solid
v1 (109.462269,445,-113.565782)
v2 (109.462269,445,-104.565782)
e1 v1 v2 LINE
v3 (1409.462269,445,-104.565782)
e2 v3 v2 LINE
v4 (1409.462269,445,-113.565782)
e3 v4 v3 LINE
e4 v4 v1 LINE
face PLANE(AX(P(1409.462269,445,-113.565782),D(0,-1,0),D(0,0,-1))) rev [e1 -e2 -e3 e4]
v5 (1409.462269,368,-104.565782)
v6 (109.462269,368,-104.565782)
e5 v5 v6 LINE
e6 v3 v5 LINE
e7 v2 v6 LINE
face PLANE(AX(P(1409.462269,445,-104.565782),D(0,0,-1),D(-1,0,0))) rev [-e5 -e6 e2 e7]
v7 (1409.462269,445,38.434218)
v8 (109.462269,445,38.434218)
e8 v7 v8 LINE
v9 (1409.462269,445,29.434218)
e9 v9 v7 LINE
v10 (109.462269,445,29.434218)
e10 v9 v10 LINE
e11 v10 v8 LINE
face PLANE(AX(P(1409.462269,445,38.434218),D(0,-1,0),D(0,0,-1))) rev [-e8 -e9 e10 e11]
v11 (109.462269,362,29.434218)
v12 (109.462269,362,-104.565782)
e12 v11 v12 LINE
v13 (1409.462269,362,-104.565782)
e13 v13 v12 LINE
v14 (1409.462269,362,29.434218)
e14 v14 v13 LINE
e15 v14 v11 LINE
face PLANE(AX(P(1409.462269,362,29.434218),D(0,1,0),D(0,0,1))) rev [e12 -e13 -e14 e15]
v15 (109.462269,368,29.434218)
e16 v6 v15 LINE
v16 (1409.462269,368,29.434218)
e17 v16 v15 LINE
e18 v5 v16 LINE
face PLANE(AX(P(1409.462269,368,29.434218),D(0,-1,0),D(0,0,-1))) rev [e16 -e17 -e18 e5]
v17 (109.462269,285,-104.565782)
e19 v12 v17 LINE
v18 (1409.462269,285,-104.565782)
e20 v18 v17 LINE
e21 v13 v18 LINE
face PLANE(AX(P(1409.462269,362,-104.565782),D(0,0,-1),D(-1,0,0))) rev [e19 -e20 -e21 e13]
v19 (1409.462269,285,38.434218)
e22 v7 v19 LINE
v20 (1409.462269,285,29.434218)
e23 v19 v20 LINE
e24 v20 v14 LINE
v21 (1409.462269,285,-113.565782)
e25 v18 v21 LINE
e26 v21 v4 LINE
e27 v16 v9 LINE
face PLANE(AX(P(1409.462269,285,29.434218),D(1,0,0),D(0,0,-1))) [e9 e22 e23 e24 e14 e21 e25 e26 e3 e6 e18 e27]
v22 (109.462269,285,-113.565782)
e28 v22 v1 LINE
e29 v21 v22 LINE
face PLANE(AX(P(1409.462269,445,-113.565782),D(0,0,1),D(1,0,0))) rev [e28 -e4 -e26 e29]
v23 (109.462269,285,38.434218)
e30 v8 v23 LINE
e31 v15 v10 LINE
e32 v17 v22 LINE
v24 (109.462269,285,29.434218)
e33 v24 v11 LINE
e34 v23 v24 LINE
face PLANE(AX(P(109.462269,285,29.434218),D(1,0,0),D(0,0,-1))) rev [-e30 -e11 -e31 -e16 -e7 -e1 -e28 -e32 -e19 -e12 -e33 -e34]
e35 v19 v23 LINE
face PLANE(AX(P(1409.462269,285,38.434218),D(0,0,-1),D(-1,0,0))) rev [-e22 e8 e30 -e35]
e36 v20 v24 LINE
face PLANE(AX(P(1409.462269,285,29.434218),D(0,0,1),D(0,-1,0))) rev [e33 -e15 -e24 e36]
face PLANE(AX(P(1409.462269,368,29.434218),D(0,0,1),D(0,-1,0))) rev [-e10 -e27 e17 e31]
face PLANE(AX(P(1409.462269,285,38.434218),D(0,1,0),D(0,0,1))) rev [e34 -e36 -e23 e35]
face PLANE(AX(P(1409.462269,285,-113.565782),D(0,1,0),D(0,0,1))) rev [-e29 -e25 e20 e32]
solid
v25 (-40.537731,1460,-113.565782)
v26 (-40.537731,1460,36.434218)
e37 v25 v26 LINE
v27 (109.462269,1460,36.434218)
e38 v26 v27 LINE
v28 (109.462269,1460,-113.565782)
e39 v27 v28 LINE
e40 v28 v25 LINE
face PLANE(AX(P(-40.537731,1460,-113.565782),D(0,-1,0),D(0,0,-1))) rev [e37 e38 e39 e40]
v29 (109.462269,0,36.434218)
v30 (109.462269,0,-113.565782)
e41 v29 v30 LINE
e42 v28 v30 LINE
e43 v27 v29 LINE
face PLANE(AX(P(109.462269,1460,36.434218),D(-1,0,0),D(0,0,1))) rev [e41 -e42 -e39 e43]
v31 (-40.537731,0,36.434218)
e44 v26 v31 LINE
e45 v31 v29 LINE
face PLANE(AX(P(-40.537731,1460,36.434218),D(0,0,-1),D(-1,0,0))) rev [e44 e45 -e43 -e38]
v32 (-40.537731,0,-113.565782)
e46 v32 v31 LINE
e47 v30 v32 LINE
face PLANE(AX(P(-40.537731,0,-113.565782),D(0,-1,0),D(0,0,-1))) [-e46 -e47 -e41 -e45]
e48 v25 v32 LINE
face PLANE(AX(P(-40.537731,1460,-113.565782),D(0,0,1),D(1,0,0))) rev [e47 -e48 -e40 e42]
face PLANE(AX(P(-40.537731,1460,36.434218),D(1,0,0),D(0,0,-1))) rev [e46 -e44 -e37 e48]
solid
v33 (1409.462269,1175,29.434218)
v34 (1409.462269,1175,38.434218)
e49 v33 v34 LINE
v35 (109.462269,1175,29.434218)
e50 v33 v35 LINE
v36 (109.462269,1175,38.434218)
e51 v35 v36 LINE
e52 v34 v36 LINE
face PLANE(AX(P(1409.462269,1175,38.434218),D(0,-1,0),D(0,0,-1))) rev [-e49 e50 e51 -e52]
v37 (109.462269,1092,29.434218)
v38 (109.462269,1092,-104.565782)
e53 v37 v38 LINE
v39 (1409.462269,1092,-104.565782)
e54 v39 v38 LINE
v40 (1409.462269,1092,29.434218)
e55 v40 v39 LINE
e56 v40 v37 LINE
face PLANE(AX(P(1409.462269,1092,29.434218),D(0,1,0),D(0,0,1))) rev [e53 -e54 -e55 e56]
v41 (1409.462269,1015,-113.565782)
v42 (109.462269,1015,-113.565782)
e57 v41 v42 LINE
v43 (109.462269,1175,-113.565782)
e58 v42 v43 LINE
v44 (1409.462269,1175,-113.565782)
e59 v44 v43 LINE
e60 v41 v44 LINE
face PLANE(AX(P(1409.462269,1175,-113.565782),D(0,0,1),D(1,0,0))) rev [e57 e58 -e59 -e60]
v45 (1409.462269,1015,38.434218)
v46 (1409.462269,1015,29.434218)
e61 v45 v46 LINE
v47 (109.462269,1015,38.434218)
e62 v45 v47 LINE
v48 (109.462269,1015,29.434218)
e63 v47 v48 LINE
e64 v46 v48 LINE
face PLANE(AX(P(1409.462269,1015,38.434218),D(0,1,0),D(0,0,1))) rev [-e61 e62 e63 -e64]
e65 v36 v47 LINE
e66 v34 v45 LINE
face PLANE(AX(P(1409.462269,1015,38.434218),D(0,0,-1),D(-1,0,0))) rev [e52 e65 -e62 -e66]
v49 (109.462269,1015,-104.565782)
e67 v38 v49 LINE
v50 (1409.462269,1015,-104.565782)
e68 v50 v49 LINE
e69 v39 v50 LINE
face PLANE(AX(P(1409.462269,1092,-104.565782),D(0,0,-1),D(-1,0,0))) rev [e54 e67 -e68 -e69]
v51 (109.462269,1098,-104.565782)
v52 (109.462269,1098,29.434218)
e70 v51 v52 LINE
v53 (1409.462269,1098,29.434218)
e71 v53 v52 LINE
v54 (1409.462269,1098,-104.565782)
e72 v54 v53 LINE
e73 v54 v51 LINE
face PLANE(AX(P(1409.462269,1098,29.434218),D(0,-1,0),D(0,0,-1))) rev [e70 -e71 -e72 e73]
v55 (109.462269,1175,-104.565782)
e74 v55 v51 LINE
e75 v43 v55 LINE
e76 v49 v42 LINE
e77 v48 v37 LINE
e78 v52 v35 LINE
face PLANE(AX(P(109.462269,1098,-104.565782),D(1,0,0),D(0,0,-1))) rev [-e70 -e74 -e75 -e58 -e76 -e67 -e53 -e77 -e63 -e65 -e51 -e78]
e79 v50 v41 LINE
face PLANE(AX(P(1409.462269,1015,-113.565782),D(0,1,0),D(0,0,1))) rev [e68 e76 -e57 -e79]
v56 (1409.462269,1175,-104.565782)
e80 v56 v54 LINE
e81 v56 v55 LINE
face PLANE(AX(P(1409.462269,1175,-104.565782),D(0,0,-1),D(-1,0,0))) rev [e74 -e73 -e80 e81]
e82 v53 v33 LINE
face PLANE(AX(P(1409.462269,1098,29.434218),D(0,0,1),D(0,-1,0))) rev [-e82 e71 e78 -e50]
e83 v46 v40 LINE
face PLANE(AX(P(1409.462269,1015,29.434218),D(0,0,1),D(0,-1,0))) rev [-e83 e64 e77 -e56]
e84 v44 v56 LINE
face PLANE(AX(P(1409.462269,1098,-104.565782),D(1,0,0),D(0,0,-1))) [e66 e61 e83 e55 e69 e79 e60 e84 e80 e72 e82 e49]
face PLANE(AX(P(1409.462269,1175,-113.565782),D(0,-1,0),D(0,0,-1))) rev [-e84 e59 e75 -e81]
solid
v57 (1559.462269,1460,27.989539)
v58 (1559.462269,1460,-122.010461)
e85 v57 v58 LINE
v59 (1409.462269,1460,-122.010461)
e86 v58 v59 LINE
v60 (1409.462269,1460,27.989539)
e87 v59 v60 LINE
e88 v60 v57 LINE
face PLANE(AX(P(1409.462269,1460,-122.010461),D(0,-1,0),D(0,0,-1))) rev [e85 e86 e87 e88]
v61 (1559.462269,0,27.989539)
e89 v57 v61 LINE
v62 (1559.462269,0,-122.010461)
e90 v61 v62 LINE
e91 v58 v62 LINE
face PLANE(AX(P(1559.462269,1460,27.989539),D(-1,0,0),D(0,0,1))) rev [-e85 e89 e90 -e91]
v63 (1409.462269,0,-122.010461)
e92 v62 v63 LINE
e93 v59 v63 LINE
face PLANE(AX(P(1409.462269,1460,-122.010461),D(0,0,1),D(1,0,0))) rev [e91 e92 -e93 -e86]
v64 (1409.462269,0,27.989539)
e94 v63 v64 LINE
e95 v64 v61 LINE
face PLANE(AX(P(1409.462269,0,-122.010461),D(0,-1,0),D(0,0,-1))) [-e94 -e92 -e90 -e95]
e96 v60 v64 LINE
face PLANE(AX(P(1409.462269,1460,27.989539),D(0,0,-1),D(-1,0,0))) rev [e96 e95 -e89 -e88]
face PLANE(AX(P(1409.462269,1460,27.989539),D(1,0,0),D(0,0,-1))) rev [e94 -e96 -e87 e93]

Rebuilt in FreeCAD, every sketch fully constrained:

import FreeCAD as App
import Part
import Sketcher
from FreeCAD import Vector
Q = App.Units.Quantity


def add_polygon(sketch, points):
    """Adds a closed chain of lines whose ends are joined by coincident constraints."""
    first, n = sketch.GeometryCount, len(points)
    for a, b in zip(points, points[1:] + points[:1]):
        sketch.addGeometry(Part.LineSegment(App.Vector(*a, 0), App.Vector(*b, 0)), False)
    for i in range(n):
        sketch.addConstraint(Sketcher.Constraint("Coincident", first + i, 2, first + (i + 1) % n, 1))

doc = App.newDocument("Part")
body = doc.addObject("PartDesign::Body", "Body")

sketch1 = doc.addObject("Sketcher::SketchObject", "Sketch")
body.addObject(sketch1)
sketch1.AttachmentSupport = (doc.XZ_Plane, [""])
sketch1.MapMode = "FlatFace"
add_polygon(sketch1, [(1409, -122), (1409, 28), (1559, 28), (1559, -122)])
sketch1.addConstraint([
    Sketcher.Constraint("Vertical", 0),
    Sketcher.Constraint("Horizontal", 1),
    Sketcher.Constraint("Vertical", 2),
    Sketcher.Constraint("Horizontal", 3),
    Sketcher.Constraint("Equal", 3, 0),
    Sketcher.Constraint("DistanceX", 1, 1, 1, 2, Q("150 mm")),
    Sketcher.Constraint("DistanceX", -1, 1, 0, 2, Q("1409.462269 mm")),
    Sketcher.Constraint("DistanceY", -1, 1, 0, 2, Q("27.989539 mm")),
])
pad1 = doc.addObject("PartDesign::Pad", "Pad")
body.addObject(pad1)
pad1.Profile = sketch1
pad1.Length = 1460
pad1.Reversed = True
body2 = doc.addObject("PartDesign::Body", "Body001")

sketch2 = doc.addObject("Sketcher::SketchObject", "Sketch001")
body2.addObject(sketch2)
sketch2.AttachmentSupport = (doc.getObject("XZ_Plane001"), [""])
sketch2.MapMode = "FlatFace"
add_polygon(sketch2, [(-41, -114), (-41, 36), (109, 36), (109, -114)])
sketch2.addConstraint([
    Sketcher.Constraint("Vertical", 0),
    Sketcher.Constraint("Horizontal", 1),
    Sketcher.Constraint("Vertical", 2),
    Sketcher.Constraint("Horizontal", 3),
    Sketcher.Constraint("Equal", 3, 0),
    Sketcher.Constraint("DistanceX", 1, 1, 1, 2, Q("150 mm")),
    Sketcher.Constraint("DistanceX", 0, 2, -1, 1, Q("40.537731 mm")),
    Sketcher.Constraint("DistanceY", -1, 1, 0, 2, Q("36.434218 mm")),
])
pad2 = doc.addObject("PartDesign::Pad", "Pad001")
body2.addObject(pad2)
pad2.Profile = sketch2
pad2.Length = 1460
pad2.Reversed = True
body3 = doc.addObject("PartDesign::Body", "Body002")

sketch3 = doc.addObject("Sketcher::SketchObject", "Sketch002")
body3.addObject(sketch3)
sketch3.AttachmentSupport = (doc.getObject("YZ_Plane002"), [""])
sketch3.MapMode = "FlatFace"
sketch3.AttachmentOffset = App.Placement(Vector(0, 0, 109.462269), App.Rotation())
add_polygon(sketch3, [(445, 38), (285, 38), (285, 29), (362, 29), (362, -105), (285, -105), (285, -114), (445, -114), (445, -105), (368, -105), (368, 29), (445, 29)])
sketch3.addConstraint([
    Sketcher.Constraint("Horizontal", 0),
    Sketcher.Constraint("Vertical", 1),
    Sketcher.Constraint("Horizontal", 2),
    Sketcher.Constraint("Vertical", 3),
    Sketcher.Constraint("Horizontal", 4),
    Sketcher.Constraint("Vertical", 5),
    Sketcher.Constraint("Horizontal", 6),
    Sketcher.Constraint("Vertical", 7),
    Sketcher.Constraint("Horizontal", 8),
    Sketcher.Constraint("Vertical", 9),
    Sketcher.Constraint("Horizontal", 10),
    Sketcher.Constraint("Vertical", 11),
    Sketcher.Constraint("Horizontal", 4, 2, 7, 2),
    Sketcher.Constraint("Horizontal", 2, 2, 9, 2),
    Sketcher.Constraint("Vertical", 1, 2, 4, 2),
    Sketcher.Constraint("Vertical", 7, 2, 10, 2),
    Sketcher.Constraint("Equal", 4, 8),
    Sketcher.Constraint("Equal", 1, 5),
    Sketcher.Constraint("DistanceX", 0, 2, 0, 1, Q("160 mm")),
    Sketcher.Constraint("DistanceX", 2, 1, 2, 2, Q("77 mm")),
    Sketcher.Constraint("DistanceY", 1, 2, 1, 1, Q("9 mm")),
    Sketcher.Constraint("DistanceY", 3, 2, 3, 1, Q("134 mm")),
    Sketcher.Constraint("DistanceX", -1, 1, 0, 2, Q("285 mm")),
    Sketcher.Constraint("DistanceY", -1, 1, 0, 2, Q("38.434218 mm")),
])
pad3 = doc.addObject("PartDesign::Pad", "Pad002")
body3.addObject(pad3)
pad3.Profile = sketch3
pad3.Length = 1300
body4 = doc.addObject("PartDesign::Body", "Body003")

sketch4 = doc.addObject("Sketcher::SketchObject", "Sketch003")
body4.addObject(sketch4)
sketch4.AttachmentSupport = (doc.getObject("YZ_Plane003"), [""])
sketch4.MapMode = "FlatFace"
sketch4.AttachmentOffset = App.Placement(Vector(0, 0, 109.462269), App.Rotation())
add_polygon(sketch4, [(1098, 29), (1175, 29), (1175, 38), (1015, 38), (1015, 29), (1092, 29), (1092, -105), (1015, -105), (1015, -114), (1175, -114), (1175, -105), (1098, -105)])
sketch4.addConstraint([
    Sketcher.Constraint("Horizontal", 0),
    Sketcher.Constraint("Vertical", 1),
    Sketcher.Constraint("Horizontal", 2),
    Sketcher.Constraint("Vertical", 3),
    Sketcher.Constraint("Horizontal", 4),
    Sketcher.Constraint("Vertical", 5),
    Sketcher.Constraint("Horizontal", 6),
    Sketcher.Constraint("Vertical", 7),
    Sketcher.Constraint("Horizontal", 8),
    Sketcher.Constraint("Vertical", 9),
    Sketcher.Constraint("Horizontal", 10),
    Sketcher.Constraint("Vertical", 11),
    Sketcher.Constraint("Horizontal", 0, 2, 3, 2),
    Sketcher.Constraint("Horizontal", 6, 2, 9, 2),
    Sketcher.Constraint("Vertical", 3, 2, 6, 2),
    Sketcher.Constraint("Vertical", 1, 2, 8, 2),
    Sketcher.Constraint("Equal", 0, 4),
    Sketcher.Constraint("Equal", 3, 7),
    Sketcher.Constraint("DistanceX", 0, 1, 0, 2, Q("77 mm")),
    Sketcher.Constraint("DistanceX", 2, 2, 2, 1, Q("160 mm")),
    Sketcher.Constraint("DistanceY", 1, 1, 1, 2, Q("9 mm")),
    Sketcher.Constraint("DistanceY", 5, 2, 5, 1, Q("134 mm")),
    Sketcher.Constraint("DistanceX", -1, 1, 0, 2, Q("1175 mm")),
    Sketcher.Constraint("DistanceY", -1, 1, 0, 2, Q("29.434218 mm")),
])
pad4 = doc.addObject("PartDesign::Pad", "Pad003")
body4.addObject(pad4)
pad4.Profile = sketch4
pad4.Length = 1300

doc.recompute()
